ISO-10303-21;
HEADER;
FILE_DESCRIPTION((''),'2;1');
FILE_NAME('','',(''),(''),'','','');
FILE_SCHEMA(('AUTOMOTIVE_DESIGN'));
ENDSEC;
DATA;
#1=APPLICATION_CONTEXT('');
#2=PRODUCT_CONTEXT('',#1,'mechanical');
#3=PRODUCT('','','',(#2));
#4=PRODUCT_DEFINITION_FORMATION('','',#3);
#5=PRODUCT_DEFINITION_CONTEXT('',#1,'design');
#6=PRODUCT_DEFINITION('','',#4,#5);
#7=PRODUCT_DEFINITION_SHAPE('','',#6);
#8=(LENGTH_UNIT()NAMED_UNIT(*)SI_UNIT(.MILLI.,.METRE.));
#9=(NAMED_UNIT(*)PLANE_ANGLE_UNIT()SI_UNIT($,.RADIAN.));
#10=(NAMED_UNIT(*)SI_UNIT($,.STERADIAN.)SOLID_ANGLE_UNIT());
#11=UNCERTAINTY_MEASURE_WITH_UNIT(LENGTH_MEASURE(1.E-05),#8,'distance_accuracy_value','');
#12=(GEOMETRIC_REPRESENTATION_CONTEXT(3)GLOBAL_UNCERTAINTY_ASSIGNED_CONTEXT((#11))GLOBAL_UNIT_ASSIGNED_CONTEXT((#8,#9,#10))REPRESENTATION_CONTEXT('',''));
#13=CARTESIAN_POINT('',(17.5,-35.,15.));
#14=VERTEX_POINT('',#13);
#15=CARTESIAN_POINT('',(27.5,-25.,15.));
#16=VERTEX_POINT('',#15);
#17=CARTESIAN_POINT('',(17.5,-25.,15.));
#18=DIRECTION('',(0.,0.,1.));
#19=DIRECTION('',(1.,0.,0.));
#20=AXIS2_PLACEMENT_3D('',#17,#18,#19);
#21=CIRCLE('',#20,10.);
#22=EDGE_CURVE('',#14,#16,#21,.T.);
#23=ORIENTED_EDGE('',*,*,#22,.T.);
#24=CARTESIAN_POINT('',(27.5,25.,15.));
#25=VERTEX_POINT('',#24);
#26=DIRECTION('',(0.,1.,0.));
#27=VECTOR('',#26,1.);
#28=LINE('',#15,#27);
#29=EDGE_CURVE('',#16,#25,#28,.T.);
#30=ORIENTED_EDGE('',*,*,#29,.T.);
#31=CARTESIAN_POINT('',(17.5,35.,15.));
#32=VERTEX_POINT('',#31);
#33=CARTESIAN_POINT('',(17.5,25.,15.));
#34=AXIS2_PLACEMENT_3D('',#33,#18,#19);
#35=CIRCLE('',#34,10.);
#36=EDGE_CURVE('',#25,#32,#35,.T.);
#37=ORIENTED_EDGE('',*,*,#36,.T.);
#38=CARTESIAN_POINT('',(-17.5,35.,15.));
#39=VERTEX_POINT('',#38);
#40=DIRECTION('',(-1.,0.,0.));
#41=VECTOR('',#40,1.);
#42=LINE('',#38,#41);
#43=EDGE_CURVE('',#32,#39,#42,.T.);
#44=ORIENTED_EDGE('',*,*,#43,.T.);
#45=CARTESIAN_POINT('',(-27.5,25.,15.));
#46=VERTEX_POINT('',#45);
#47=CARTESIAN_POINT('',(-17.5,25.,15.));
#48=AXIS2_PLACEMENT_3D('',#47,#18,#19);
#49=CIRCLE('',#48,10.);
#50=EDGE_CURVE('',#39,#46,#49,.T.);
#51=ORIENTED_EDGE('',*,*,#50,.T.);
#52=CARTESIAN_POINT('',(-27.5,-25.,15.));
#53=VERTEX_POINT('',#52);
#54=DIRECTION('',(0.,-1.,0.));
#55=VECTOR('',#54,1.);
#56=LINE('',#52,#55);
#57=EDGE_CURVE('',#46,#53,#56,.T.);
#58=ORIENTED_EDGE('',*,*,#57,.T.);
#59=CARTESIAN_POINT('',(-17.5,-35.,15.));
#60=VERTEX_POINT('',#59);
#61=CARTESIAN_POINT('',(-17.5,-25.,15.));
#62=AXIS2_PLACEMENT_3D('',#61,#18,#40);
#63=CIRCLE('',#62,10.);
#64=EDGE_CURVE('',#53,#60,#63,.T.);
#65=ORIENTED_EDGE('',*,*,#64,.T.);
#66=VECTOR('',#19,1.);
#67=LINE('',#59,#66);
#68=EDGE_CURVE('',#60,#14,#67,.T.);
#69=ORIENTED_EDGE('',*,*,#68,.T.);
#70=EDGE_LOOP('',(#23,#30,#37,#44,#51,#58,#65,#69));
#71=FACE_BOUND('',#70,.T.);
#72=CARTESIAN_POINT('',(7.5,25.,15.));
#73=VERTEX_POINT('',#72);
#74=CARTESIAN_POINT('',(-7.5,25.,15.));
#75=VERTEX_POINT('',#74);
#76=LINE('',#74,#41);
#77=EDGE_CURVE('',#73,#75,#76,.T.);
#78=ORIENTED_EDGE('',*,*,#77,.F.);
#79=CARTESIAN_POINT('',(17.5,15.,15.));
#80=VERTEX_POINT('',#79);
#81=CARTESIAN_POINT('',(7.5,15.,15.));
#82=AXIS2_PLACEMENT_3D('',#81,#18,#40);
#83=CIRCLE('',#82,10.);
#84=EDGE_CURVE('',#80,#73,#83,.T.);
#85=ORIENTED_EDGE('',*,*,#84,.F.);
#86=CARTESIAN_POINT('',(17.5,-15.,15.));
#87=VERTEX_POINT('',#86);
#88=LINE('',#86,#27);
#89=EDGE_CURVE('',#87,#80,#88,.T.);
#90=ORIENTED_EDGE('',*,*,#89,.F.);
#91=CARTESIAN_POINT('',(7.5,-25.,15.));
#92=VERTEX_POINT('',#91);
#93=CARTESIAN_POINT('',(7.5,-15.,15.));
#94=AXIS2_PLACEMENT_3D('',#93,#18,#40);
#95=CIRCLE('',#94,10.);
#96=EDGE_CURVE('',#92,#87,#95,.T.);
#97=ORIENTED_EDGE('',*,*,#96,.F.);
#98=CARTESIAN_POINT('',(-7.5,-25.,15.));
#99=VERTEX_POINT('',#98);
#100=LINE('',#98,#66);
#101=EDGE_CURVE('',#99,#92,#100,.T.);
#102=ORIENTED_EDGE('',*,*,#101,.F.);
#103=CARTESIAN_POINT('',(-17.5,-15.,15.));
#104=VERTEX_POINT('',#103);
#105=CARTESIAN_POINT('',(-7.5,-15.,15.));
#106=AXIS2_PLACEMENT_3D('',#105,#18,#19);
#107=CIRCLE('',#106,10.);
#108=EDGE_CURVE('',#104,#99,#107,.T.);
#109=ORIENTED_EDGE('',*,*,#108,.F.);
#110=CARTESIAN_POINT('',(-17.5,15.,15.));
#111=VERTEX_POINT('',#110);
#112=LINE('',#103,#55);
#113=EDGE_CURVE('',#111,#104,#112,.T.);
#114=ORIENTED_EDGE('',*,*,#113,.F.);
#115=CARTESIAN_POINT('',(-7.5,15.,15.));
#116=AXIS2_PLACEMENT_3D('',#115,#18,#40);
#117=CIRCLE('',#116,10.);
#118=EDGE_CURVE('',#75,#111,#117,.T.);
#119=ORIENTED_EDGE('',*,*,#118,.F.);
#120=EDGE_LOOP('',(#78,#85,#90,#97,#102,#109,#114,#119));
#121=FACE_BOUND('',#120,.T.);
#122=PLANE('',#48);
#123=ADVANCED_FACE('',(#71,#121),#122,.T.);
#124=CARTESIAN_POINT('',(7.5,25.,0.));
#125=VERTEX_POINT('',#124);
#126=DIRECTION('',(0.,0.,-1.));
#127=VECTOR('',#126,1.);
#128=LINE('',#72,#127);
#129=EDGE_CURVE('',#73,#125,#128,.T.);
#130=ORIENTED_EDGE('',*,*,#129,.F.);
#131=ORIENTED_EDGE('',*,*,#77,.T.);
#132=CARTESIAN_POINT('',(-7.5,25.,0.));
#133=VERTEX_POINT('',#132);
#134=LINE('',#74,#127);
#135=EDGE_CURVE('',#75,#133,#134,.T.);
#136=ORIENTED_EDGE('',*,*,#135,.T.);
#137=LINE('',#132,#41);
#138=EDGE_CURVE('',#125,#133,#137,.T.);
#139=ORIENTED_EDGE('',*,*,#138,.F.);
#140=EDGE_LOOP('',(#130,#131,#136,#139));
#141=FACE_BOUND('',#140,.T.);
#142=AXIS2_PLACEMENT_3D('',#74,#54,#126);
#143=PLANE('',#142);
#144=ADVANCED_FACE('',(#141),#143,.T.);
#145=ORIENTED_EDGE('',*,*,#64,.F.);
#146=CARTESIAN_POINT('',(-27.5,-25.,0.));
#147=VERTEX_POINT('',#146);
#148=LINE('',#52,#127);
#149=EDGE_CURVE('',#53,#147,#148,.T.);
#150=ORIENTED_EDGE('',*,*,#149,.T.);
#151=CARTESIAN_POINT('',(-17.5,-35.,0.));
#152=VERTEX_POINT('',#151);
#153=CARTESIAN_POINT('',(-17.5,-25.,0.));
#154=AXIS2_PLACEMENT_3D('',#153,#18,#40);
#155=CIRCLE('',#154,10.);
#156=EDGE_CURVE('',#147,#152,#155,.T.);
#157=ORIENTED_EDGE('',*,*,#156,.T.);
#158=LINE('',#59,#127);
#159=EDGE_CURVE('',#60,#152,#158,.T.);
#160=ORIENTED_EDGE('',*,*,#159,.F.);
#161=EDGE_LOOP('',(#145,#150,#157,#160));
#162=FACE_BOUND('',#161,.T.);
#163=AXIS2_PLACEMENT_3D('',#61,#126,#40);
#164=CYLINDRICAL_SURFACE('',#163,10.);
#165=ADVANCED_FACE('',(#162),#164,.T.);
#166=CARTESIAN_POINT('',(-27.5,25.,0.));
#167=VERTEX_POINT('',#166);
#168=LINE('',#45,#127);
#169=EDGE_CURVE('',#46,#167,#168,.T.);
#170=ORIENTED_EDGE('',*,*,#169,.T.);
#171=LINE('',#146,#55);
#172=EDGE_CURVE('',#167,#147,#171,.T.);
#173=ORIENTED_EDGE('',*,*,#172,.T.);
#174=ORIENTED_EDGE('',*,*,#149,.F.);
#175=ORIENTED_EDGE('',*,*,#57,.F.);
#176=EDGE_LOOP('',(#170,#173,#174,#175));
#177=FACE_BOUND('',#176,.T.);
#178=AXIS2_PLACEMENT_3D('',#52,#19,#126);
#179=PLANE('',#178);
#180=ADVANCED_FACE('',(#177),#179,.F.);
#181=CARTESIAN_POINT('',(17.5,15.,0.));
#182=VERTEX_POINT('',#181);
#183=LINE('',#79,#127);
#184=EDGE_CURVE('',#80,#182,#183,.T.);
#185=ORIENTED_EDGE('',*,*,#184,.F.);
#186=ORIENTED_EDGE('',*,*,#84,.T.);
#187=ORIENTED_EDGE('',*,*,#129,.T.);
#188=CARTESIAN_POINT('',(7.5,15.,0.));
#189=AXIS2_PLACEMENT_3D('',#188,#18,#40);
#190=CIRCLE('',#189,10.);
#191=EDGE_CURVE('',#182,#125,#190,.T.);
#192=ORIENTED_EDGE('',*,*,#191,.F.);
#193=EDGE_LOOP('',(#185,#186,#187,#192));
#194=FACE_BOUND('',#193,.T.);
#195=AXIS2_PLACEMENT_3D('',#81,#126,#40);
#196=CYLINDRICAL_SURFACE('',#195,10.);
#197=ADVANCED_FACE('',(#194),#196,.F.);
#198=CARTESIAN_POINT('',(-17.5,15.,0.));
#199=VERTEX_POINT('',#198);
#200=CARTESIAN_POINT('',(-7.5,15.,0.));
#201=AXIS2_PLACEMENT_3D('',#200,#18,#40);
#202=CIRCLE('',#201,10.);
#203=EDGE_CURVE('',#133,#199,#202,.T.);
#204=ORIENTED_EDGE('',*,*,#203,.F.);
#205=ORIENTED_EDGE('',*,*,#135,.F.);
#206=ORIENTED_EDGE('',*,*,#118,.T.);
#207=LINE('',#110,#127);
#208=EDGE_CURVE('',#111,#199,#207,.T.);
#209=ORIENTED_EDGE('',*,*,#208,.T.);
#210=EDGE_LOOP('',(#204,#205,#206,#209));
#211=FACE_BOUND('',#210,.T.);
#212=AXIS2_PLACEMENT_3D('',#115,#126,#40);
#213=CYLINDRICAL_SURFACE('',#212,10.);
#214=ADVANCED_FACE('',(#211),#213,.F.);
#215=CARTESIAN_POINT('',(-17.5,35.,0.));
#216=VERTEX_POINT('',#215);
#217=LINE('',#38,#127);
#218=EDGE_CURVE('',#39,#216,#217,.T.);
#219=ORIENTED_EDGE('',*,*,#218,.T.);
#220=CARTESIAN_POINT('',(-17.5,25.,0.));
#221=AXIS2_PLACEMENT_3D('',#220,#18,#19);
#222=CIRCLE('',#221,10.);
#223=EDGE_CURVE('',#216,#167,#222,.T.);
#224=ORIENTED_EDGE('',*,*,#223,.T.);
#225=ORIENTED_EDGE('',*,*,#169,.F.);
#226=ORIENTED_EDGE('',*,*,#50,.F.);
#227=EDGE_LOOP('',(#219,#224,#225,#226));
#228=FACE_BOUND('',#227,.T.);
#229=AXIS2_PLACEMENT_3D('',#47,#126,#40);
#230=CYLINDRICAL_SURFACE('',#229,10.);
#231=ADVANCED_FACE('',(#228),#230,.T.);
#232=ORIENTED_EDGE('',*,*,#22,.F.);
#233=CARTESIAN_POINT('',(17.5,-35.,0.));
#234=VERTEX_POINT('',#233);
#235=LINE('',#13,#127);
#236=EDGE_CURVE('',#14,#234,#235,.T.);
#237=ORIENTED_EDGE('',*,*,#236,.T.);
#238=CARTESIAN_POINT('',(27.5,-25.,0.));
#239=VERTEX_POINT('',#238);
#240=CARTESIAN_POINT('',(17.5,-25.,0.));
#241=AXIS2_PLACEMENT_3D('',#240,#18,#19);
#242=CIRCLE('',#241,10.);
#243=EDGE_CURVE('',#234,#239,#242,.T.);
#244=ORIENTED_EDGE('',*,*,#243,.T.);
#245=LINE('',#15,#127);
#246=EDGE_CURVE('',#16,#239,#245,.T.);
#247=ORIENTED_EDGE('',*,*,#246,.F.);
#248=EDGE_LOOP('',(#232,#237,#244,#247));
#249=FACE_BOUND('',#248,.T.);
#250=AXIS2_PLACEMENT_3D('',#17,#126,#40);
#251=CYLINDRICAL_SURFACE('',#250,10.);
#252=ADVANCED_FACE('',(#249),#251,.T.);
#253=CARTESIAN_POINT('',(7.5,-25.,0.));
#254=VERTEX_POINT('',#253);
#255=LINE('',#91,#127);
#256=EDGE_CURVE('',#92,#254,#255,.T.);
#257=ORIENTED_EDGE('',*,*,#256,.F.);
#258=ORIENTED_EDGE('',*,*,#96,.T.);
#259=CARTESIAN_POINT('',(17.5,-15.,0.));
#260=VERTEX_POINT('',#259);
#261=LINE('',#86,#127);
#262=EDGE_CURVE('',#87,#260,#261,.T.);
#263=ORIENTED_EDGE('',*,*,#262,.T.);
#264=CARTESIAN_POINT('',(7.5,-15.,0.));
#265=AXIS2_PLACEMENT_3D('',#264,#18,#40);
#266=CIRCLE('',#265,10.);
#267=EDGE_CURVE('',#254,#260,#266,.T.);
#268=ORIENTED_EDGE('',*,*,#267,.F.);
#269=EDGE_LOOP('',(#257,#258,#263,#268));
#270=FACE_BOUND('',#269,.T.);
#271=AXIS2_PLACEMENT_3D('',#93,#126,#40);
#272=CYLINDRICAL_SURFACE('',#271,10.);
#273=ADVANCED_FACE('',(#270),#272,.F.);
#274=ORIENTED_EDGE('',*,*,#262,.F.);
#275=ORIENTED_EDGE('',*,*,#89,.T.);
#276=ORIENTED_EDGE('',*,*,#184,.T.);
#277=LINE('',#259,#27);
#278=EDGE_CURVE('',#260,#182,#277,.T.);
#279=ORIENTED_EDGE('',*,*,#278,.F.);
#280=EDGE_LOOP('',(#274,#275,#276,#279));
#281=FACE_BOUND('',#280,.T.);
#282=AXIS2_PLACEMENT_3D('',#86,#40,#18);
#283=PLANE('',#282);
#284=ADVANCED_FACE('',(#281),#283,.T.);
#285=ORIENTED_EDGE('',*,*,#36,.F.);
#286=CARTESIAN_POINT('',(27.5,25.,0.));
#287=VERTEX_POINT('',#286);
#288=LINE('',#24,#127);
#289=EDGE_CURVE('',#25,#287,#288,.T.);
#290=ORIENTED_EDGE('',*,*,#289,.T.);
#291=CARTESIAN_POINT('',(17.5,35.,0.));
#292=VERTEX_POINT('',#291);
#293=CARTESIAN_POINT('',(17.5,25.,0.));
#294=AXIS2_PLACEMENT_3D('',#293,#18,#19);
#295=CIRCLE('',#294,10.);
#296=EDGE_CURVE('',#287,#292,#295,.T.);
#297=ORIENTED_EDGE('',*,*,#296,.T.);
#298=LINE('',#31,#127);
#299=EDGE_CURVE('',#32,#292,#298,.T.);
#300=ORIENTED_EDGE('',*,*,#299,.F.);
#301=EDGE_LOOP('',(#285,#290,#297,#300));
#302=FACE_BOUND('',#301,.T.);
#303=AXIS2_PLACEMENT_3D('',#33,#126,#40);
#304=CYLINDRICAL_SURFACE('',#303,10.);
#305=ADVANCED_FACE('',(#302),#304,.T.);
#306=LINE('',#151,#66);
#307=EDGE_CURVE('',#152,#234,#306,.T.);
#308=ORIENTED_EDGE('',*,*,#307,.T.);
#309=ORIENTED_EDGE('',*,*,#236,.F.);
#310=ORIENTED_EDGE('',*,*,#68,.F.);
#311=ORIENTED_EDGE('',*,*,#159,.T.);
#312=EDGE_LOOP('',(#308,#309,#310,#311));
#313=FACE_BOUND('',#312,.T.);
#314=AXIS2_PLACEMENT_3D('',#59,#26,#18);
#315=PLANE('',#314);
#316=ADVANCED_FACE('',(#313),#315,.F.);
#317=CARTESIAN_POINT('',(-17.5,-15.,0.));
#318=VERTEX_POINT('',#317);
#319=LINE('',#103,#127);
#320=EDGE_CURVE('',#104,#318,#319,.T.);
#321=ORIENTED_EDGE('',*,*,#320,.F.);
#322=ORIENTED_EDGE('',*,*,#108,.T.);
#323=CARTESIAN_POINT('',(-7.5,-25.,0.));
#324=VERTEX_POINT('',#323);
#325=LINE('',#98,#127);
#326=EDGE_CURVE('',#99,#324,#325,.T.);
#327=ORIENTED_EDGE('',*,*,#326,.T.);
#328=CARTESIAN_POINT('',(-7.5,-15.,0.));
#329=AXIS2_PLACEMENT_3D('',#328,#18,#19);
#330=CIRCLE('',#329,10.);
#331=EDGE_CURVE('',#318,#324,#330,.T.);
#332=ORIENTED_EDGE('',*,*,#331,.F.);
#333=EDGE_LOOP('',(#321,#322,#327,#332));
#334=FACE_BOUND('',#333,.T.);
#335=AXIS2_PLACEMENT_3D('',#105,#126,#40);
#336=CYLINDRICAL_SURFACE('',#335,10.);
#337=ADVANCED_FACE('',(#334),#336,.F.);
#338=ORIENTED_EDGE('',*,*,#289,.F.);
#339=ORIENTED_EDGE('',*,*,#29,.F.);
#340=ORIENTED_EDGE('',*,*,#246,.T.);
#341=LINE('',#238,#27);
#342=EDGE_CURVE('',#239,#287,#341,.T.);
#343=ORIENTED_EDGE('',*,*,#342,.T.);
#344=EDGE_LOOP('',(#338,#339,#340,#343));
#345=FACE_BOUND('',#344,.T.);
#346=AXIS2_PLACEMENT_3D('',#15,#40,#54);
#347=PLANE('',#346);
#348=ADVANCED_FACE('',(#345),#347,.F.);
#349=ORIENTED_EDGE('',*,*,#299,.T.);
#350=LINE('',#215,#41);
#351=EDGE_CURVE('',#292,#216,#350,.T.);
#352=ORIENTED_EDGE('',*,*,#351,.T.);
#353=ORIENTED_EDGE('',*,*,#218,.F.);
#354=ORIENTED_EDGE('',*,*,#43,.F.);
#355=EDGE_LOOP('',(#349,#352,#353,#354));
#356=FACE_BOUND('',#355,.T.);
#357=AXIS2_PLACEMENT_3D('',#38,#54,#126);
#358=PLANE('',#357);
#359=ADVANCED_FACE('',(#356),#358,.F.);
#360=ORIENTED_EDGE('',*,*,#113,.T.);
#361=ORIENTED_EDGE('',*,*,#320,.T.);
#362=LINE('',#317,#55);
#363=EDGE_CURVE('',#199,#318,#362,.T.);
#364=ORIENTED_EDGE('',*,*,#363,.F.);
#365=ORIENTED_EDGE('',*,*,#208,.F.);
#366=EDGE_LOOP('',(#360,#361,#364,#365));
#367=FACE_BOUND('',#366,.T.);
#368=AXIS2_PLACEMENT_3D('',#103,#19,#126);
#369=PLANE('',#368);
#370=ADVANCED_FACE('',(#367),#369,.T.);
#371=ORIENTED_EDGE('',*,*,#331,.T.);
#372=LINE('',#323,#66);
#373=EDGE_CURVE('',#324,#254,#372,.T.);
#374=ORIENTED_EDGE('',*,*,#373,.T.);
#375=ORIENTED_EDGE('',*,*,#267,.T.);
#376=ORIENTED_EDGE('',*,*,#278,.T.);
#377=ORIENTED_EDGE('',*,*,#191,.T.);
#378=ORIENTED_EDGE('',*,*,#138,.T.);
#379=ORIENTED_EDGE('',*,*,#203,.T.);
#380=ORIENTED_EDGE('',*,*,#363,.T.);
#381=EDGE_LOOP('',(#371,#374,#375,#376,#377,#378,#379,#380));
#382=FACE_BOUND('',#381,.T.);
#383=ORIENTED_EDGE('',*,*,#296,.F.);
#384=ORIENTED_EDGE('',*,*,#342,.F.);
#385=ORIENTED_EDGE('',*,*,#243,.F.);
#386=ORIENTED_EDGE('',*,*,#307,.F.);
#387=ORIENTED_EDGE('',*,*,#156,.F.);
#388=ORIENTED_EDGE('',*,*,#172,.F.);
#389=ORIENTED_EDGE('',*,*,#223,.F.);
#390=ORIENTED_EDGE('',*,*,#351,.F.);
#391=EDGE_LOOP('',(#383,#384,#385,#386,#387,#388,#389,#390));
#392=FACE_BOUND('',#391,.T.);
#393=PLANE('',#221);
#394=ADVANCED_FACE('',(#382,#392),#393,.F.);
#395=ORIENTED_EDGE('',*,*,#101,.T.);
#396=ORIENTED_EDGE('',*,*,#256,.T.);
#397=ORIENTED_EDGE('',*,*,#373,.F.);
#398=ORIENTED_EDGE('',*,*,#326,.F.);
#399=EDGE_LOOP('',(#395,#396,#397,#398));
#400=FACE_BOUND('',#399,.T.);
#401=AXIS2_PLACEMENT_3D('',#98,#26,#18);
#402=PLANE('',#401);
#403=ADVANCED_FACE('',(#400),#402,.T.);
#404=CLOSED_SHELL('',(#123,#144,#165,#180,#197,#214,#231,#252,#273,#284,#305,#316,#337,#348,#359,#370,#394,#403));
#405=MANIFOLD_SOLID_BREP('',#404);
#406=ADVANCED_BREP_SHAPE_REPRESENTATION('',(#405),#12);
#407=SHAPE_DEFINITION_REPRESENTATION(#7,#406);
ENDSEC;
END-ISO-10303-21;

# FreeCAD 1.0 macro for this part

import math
import FreeCAD as App
import Part
import Sketcher

V = App.Vector
Q = App.Units.Quantity

doc = App.newDocument("Part")
body = doc.addObject("PartDesign::Body", "Body")

# Sketch on XY plane
sketch1 = body.newObject("Sketcher::SketchObject", "Sketch")
sketch1.AttachmentSupport = (doc.getObject("XY_Plane"), [""])
sketch1.MapMode = "FlatFace"
sketch1.addGeometry(Part.LineSegment(V(18, 35, 0), V(-18, 35, 0)), False)
sketch1.addGeometry(Part.ArcOfCircle(Part.Circle(V(-18, 25, 0), V(0, 0, 1), 10), math.radians(90), math.radians(180)), False)
sketch1.addGeometry(Part.LineSegment(V(-28, 25, 0), V(-28, -25, 0)), False)
sketch1.addGeometry(Part.ArcOfCircle(Part.Circle(V(-18, -25, 0), V(0, 0, 1), 10), math.radians(180), math.radians(270)), False)
sketch1.addGeometry(Part.LineSegment(V(-18, -35, 0), V(18, -35, 0)), False)
sketch1.addGeometry(Part.ArcOfCircle(Part.Circle(V(18, -25, 0), V(0, 0, 1), 10), math.radians(-90), math.radians(0)), False)
sketch1.addGeometry(Part.LineSegment(V(28, -25, 0), V(28, 25, 0)), False)
sketch1.addGeometry(Part.ArcOfCircle(Part.Circle(V(18, 25, 0), V(0, 0, 1), 10), math.radians(0), math.radians(90)), False)
sketch1.addGeometry(Part.ArcOfCircle(Part.Circle(V(-8, -15, 0), V(0, 0, 1), 10), math.radians(180), math.radians(270)), False)
sketch1.addGeometry(Part.LineSegment(V(-18, -15, 0), V(-18, 15, 0)), False)
sketch1.addGeometry(Part.ArcOfCircle(Part.Circle(V(-8, 15, 0), V(0, 0, 1), 10), math.radians(90), math.radians(180)), False)
sketch1.addGeometry(Part.LineSegment(V(-8, 25, 0), V(8, 25, 0)), False)
sketch1.addGeometry(Part.ArcOfCircle(Part.Circle(V(8, 15, 0), V(0, 0, 1), 10), math.radians(0), math.radians(90)), False)
sketch1.addGeometry(Part.LineSegment(V(18, 15, 0), V(18, -15, 0)), False)
sketch1.addGeometry(Part.ArcOfCircle(Part.Circle(V(8, -15, 0), V(0, 0, 1), 10), math.radians(-90), math.radians(0)), False)
sketch1.addGeometry(Part.LineSegment(V(8, -25, 0), V(-8, -25, 0)), False)
sketch1.addConstraint(Sketcher.Constraint("Tangent", 0, 2, 1, 1))
sketch1.addConstraint(Sketcher.Constraint("Tangent", 1, 2, 2, 1))
sketch1.addConstraint(Sketcher.Constraint("Tangent", 2, 2, 3, 1))
sketch1.addConstraint(Sketcher.Constraint("Tangent", 3, 2, 4, 1))
sketch1.addConstraint(Sketcher.Constraint("Tangent", 4, 2, 5, 1))
sketch1.addConstraint(Sketcher.Constraint("Tangent", 5, 2, 6, 1))
sketch1.addConstraint(Sketcher.Constraint("Tangent", 6, 2, 7, 1))
sketch1.addConstraint(Sketcher.Constraint("Tangent", 7, 2, 0, 1))
sketch1.addConstraint(Sketcher.Constraint("Tangent", 8, 1, 9, 1))
sketch1.addConstraint(Sketcher.Constraint("Tangent", 9, 2, 10, 2))
sketch1.addConstraint(Sketcher.Constraint("Tangent", 10, 1, 11, 1))
sketch1.addConstraint(Sketcher.Constraint("Tangent", 11, 2, 12, 2))
sketch1.addConstraint(Sketcher.Constraint("Tangent", 12, 1, 13, 1))
sketch1.addConstraint(Sketcher.Constraint("Tangent", 13, 2, 14, 2))
sketch1.addConstraint(Sketcher.Constraint("Tangent", 14, 1, 15, 1))
sketch1.addConstraint(Sketcher.Constraint("Tangent", 15, 2, 8, 2))
sketch1.addConstraint(Sketcher.Constraint("Horizontal", 0))
sketch1.addConstraint(Sketcher.Constraint("Vertical", 2))
sketch1.addConstraint(Sketcher.Constraint("Horizontal", 4))
sketch1.addConstraint(Sketcher.Constraint("Vertical", 6))
sketch1.addConstraint(Sketcher.Constraint("Vertical", 9))
sketch1.addConstraint(Sketcher.Constraint("Horizontal", 11))
sketch1.addConstraint(Sketcher.Constraint("Vertical", 13))
sketch1.addConstraint(Sketcher.Constraint("Horizontal", 15))
sketch1.addConstraint(Sketcher.Constraint("Equal", 1, 3))
sketch1.addConstraint(Sketcher.Constraint("Equal", 3, 5))
sketch1.addConstraint(Sketcher.Constraint("Equal", 5, 7))
sketch1.addConstraint(Sketcher.Constraint("Equal", 7, 8))
sketch1.addConstraint(Sketcher.Constraint("Equal", 8, 10))
sketch1.addConstraint(Sketcher.Constraint("Equal", 10, 12))
sketch1.addConstraint(Sketcher.Constraint("Equal", 12, 14))
sketch1.addConstraint(Sketcher.Constraint("Symmetric", 1, 3, 5, 3, -1, 1))
sketch1.addConstraint(Sketcher.Constraint("Symmetric", 8, 3, 12, 3, -1, 1))
sketch1.addConstraint(Sketcher.Constraint("Horizontal", 6, 2, 10, 1))
sketch1.addConstraint(Sketcher.Constraint("Vertical", 3, 2, 8, 1))
sketch1.addConstraint(Sketcher.Constraint("Radius", 1, Q("10 mm")))
sketch1.addConstraint(Sketcher.Constraint("DistanceX", 0, 2, 0, 1, Q("35 mm")))
sketch1.addConstraint(Sketcher.Constraint("DistanceY", 2, 2, 2, 1, Q("50 mm")))
pad1 = body.newObject("PartDesign::Pad", "Pad")
pad1.Profile = sketch1
pad1.Length = 15

doc.recompute()
